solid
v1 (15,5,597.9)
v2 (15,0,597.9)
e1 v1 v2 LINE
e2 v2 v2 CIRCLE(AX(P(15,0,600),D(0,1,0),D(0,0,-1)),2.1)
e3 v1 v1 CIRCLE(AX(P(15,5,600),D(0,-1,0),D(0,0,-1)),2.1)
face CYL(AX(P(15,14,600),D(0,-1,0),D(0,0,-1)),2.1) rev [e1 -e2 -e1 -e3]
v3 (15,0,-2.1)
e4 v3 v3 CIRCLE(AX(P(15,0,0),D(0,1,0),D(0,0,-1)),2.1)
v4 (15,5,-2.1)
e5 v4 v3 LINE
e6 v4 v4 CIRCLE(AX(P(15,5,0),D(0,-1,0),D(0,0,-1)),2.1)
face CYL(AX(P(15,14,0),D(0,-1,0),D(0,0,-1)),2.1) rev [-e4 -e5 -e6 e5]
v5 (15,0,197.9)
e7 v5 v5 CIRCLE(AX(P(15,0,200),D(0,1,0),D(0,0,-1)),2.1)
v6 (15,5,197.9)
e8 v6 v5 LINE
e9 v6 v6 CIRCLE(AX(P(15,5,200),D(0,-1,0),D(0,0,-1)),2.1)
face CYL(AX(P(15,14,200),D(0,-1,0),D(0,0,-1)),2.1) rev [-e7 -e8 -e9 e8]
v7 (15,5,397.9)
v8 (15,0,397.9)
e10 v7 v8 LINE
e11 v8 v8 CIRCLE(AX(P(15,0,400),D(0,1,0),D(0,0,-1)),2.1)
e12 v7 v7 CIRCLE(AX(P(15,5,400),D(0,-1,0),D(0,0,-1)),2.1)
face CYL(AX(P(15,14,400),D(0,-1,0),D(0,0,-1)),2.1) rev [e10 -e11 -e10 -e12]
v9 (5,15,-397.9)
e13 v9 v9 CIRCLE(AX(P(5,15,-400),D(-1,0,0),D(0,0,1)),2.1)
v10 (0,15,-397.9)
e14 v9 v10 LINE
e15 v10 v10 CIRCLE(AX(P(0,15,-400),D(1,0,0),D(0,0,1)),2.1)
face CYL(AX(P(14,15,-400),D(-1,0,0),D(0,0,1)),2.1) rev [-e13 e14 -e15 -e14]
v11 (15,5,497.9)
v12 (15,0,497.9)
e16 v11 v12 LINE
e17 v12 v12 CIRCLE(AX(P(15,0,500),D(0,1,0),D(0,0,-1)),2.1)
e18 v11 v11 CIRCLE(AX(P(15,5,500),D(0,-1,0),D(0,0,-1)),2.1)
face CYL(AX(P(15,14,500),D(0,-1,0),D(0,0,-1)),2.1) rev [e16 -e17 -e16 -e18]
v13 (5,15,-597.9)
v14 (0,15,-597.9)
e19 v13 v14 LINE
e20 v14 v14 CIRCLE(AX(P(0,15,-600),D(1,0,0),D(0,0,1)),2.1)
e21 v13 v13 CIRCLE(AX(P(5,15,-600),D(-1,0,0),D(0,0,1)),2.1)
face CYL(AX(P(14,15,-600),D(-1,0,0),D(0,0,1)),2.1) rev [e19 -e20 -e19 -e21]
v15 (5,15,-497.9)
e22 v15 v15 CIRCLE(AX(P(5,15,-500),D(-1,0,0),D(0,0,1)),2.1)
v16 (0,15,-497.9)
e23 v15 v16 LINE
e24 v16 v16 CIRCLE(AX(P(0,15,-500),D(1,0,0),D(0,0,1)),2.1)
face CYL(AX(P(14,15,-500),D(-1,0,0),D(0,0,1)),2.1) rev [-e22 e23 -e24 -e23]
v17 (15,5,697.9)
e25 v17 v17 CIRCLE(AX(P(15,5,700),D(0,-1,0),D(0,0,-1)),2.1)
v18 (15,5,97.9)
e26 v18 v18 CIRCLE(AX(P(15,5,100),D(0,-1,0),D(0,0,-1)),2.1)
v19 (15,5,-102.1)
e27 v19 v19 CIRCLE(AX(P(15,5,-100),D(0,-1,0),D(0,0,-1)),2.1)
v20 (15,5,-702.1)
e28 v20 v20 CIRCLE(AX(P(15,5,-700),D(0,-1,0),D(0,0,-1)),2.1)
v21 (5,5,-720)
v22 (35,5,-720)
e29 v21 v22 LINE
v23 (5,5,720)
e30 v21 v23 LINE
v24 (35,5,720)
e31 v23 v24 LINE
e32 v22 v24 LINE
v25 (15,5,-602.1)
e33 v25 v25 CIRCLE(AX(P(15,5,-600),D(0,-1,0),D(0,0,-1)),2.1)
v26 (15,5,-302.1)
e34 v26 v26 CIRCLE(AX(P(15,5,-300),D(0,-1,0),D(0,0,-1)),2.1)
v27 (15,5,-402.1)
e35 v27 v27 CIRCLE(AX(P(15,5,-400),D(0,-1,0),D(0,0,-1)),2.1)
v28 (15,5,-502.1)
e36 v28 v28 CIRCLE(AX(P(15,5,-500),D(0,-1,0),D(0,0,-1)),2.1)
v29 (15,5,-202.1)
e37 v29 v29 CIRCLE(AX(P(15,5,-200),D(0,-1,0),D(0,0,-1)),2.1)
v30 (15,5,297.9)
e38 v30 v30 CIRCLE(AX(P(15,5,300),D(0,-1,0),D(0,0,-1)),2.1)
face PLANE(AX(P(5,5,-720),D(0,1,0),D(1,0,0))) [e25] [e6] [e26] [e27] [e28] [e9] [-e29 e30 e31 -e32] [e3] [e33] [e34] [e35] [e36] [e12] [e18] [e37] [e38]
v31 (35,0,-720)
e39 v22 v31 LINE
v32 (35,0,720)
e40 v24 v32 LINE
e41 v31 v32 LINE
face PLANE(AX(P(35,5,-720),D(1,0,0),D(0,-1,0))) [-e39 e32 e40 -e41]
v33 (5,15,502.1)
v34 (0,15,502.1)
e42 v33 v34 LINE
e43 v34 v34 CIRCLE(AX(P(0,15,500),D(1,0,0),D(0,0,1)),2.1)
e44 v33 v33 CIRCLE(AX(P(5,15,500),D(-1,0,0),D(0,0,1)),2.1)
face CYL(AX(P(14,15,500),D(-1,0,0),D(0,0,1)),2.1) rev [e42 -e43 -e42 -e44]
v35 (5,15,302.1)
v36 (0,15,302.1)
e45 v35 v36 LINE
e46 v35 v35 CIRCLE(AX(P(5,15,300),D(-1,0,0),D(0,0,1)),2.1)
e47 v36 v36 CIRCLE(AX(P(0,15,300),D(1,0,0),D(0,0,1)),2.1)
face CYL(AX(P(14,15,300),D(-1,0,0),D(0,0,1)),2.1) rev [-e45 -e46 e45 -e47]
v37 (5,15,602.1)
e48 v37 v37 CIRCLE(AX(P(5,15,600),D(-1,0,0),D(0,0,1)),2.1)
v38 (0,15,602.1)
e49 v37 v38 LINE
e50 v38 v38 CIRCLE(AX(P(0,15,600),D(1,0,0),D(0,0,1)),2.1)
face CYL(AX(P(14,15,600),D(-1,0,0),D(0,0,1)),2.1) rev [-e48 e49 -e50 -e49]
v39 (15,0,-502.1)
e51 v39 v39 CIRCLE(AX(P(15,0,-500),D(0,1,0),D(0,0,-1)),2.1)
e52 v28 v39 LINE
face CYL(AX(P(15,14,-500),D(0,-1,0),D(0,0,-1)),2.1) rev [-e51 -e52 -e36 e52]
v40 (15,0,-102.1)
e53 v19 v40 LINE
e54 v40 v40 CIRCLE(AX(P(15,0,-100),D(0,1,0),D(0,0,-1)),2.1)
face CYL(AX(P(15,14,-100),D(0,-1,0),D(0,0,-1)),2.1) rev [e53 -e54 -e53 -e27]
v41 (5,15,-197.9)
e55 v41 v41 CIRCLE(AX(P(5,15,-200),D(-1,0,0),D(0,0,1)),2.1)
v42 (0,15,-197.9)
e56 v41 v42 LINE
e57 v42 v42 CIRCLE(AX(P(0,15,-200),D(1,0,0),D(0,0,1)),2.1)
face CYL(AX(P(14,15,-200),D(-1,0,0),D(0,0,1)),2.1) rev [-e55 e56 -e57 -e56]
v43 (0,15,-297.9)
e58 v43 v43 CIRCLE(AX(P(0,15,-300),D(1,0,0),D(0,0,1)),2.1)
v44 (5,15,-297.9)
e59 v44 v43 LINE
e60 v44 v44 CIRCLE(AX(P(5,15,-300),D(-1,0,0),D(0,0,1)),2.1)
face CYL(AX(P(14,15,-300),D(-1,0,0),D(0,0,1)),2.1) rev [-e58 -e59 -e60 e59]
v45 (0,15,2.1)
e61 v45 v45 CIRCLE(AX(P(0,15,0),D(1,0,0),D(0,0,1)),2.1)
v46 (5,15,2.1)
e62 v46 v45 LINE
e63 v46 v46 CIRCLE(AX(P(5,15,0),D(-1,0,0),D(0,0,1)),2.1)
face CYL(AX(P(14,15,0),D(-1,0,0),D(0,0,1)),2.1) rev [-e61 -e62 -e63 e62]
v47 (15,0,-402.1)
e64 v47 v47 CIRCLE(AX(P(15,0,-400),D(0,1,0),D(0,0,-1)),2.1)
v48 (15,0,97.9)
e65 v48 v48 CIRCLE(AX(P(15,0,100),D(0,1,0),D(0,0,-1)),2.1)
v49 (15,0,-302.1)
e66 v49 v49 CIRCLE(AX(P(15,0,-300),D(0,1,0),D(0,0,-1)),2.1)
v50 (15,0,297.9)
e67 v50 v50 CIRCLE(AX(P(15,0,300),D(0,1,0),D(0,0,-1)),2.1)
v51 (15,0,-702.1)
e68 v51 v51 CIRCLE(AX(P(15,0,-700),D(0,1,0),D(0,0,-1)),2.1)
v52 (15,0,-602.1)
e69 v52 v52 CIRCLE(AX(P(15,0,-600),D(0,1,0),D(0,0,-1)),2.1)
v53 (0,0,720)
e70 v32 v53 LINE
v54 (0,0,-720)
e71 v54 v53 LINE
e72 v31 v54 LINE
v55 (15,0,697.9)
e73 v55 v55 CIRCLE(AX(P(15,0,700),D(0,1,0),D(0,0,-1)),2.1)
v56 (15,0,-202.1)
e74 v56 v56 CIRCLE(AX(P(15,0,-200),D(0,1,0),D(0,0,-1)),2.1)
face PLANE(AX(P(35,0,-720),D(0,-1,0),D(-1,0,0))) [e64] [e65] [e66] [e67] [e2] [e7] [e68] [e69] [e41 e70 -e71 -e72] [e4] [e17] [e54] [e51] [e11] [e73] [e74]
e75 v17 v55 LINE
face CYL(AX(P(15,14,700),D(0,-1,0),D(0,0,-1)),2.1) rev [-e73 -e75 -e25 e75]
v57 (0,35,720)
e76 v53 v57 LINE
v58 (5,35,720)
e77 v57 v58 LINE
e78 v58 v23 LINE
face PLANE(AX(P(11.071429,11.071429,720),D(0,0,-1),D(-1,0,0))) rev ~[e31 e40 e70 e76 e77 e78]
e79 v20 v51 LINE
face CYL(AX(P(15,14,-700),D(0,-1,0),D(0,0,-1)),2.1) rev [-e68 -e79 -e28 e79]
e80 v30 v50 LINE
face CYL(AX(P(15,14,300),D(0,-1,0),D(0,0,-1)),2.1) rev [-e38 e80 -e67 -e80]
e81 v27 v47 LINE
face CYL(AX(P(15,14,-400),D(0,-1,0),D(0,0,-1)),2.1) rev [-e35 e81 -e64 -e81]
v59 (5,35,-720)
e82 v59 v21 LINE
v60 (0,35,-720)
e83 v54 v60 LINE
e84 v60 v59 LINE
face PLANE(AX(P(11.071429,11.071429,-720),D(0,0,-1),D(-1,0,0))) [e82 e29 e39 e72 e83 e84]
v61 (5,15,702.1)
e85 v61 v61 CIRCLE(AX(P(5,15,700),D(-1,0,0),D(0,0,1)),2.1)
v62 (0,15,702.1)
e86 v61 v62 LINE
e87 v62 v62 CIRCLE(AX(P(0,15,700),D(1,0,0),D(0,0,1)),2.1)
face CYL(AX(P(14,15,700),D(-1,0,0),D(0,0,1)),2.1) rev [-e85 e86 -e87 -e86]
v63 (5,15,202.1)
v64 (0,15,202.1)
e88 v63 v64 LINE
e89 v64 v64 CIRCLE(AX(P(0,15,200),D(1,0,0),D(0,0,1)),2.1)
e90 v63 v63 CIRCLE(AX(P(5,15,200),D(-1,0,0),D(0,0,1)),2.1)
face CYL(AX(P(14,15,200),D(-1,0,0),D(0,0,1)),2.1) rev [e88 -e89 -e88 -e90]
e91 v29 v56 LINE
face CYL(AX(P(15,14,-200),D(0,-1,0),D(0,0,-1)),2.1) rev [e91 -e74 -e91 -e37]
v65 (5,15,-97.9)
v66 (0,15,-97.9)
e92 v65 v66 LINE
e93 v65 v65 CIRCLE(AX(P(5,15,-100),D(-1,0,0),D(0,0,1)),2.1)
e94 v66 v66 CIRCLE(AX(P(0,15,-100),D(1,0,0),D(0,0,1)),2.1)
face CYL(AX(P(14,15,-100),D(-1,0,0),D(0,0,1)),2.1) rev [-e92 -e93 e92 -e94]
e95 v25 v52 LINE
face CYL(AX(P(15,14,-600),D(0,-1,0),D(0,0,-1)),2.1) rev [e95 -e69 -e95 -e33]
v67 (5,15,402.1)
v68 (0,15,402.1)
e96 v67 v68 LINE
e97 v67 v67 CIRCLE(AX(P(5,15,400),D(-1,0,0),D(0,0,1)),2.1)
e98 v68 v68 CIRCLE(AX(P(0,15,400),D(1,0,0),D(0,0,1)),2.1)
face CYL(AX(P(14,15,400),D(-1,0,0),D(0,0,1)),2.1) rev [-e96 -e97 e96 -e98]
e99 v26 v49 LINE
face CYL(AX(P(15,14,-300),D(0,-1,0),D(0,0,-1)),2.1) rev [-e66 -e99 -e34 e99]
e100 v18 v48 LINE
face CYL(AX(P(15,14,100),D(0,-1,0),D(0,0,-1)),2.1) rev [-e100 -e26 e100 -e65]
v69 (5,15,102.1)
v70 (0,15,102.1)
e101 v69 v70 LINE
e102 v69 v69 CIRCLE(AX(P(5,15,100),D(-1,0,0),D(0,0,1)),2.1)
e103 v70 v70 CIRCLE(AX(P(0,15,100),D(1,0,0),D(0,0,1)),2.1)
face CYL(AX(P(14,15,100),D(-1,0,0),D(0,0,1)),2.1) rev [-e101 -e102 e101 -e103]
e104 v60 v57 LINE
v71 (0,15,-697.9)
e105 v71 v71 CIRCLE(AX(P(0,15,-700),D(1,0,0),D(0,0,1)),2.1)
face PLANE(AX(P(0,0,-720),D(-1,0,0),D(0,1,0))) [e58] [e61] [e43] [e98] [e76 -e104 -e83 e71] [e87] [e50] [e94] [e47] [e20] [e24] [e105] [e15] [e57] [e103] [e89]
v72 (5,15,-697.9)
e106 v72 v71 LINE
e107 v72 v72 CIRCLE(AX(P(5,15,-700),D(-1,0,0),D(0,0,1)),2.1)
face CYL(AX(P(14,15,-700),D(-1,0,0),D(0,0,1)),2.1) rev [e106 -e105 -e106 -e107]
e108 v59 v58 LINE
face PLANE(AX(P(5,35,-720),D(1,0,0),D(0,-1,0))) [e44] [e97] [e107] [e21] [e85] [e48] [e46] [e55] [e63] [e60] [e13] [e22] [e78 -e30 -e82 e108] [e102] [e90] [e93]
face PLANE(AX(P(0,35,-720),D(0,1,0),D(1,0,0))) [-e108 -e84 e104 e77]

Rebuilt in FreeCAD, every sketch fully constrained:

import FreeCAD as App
import Part
import Sketcher

V = App.Vector
Q = App.Units.Quantity

doc = App.newDocument("Part")
body = doc.addObject("PartDesign::Body", "Body")

# Sketch on XY plane
sketch1 = body.newObject("Sketcher::SketchObject", "Sketch")
sketch1.AttachmentSupport = (doc.getObject("XY_Plane"), [""])
sketch1.MapMode = "FlatFace"
sketch1.addGeometry([
    Part.LineSegment(V(0, 35, 0), V(0, 0, 0)),  # 0
    Part.LineSegment(V(0, 0, 0), V(35, 0, 0)),  # 1
    Part.LineSegment(V(35, 0, 0), V(35, 5, 0)),  # 2
    Part.LineSegment(V(35, 5, 0), V(5, 5, 0)),  # 3
    Part.LineSegment(V(5, 5, 0), V(5, 35, 0)),  # 4
    Part.LineSegment(V(5, 35, 0), V(0, 35, 0)),  # 5
], False)
sketch1.addConstraint([
    Sketcher.Constraint("Coincident", 0, 2, 1, 1),
    Sketcher.Constraint("Coincident", 1, 2, 2, 1),
    Sketcher.Constraint("Coincident", 2, 2, 3, 1),
    Sketcher.Constraint("Coincident", 3, 2, 4, 1),
    Sketcher.Constraint("Coincident", 4, 2, 5, 1),
    Sketcher.Constraint("Coincident", 5, 2, 0, 1),
    Sketcher.Constraint("Vertical", 0),
    Sketcher.Constraint("Horizontal", 1),
    Sketcher.Constraint("Vertical", 2),
    Sketcher.Constraint("Horizontal", 3),
    Sketcher.Constraint("Vertical", 4),
    Sketcher.Constraint("Horizontal", 5),
    Sketcher.Constraint("Coincident", 0, 2, -1, 1),
    Sketcher.Constraint("Equal", 1, 0),
    Sketcher.Constraint("Equal", 5, 2),
    Sketcher.Constraint("DistanceX", 1, 1, 1, 2, Q("35 mm")),
    Sketcher.Constraint("DistanceX", 3, 2, 3, 1, Q("30 mm")),
])
pad1 = body.newObject("PartDesign::Pad", "Pad")
pad1.Profile = sketch1
pad1.Type = "TwoLengths"
pad1.Length = 720
pad1.Length2 = 720

# Sketch on YZ plane
sketch2 = body.newObject("Sketcher::SketchObject", "Sketch001")
sketch2.AttachmentSupport = (doc.getObject("YZ_Plane"), [""])
sketch2.MapMode = "FlatFace"
sketch2.AttachmentOffset = App.Placement(V(0, 0, 15), App.Rotation())
sketch2.addGeometry([
    Part.LineSegment(V(15.261807, 700, 0), V(0, 700, 0)),
    Part.LineSegment(V(0, 700, 0), V(0, 697.9, 0)),
    Part.LineSegment(V(0, 697.9, 0), V(14, 697.9, 0)),
    Part.LineSegment(V(14, 697.9, 0), V(15.261807, 700, 0)),
], False)
sketch2.addGeometry(Part.LineSegment(V(0, 700, 0), V(15.261807, 700, 0)), True)  # axis
sketch2.addConstraint([
    Sketcher.Constraint("Coincident", 0, 2, 1, 1),
    Sketcher.Constraint("Coincident", 1, 2, 2, 1),
    Sketcher.Constraint("Coincident", 2, 2, 3, 1),
    Sketcher.Constraint("Coincident", 3, 2, 0, 1),
    Sketcher.Constraint("Horizontal", 0),
    Sketcher.Constraint("Vertical", 1),
    Sketcher.Constraint("Horizontal", 2),
    Sketcher.Constraint("Horizontal", 4),
    Sketcher.Constraint("Coincident", 4, 1, 0, 2),
    Sketcher.Constraint("PointOnObject", 0, 2, -2),
    Sketcher.Constraint("Equal", 0, 4),
    Sketcher.Constraint("DistanceX", 2, 1, 2, 2, Q("14 mm")),
    Sketcher.Constraint("Angle", 3, Q("59 deg")),
    Sketcher.Constraint("DistanceY", 1, 2, 1, 1, Q("2.1 mm")),
    Sketcher.Constraint("DistanceY", -1, 1, 0, 2, Q("700 mm")),
])
groove = body.newObject("PartDesign::Groove", "Groove")
groove.Profile = sketch2
groove.ReferenceAxis = (sketch2, ["Axis0"])
groove.Angle = 360
doc.recompute()

linearpattern = body.newObject("PartDesign::LinearPattern", "LinearPattern")
linearpattern.Originals = [groove]
linearpattern.Direction = (doc.getObject("Z_Axis"), [""])
linearpattern.Mode = "offset"
linearpattern.Offset = 100
linearpattern.Occurrences = 15
linearpattern.Reversed = True
body.Tip = linearpattern

# Sketch on XZ plane
sketch3 = body.newObject("Sketcher::SketchObject", "Sketch002")
sketch3.AttachmentSupport = (doc.getObject("XZ_Plane"), [""])
sketch3.MapMode = "FlatFace"
sketch3.AttachmentOffset = App.Placement(V(0, 0, -15), App.Rotation())
sketch3.addGeometry([
    Part.LineSegment(V(15.261807, 700, 0), V(0, 700, 0)),
    Part.LineSegment(V(0, 700, 0), V(0, 702.1, 0)),
    Part.LineSegment(V(0, 702.1, 0), V(14, 702.1, 0)),
    Part.LineSegment(V(14, 702.1, 0), V(15.261807, 700, 0)),
], False)
sketch3.addGeometry(Part.LineSegment(V(0, 700, 0), V(15.261807, 700, 0)), True)  # axis
sketch3.addConstraint([
    Sketcher.Constraint("Coincident", 0, 2, 1, 1),
    Sketcher.Constraint("Coincident", 1, 2, 2, 1),
    Sketcher.Constraint("Coincident", 2, 2, 3, 1),
    Sketcher.Constraint("Coincident", 3, 2, 0, 1),
    Sketcher.Constraint("Horizontal", 0),
    Sketcher.Constraint("Vertical", 1),
    Sketcher.Constraint("Horizontal", 2),
    Sketcher.Constraint("Horizontal", 4),
    Sketcher.Constraint("Coincident", 4, 1, 0, 2),
    Sketcher.Constraint("PointOnObject", 0, 2, -2),
    Sketcher.Constraint("Equal", 0, 4),
    Sketcher.Constraint("DistanceX", 2, 1, 2, 2, Q("14 mm")),
    Sketcher.Constraint("Angle", 3, Q("-59 deg")),
    Sketcher.Constraint("DistanceY", 1, 1, 1, 2, Q("2.1 mm")),
    Sketcher.Constraint("DistanceY", -1, 1, 0, 2, Q("700 mm")),
])
groove2 = body.newObject("PartDesign::Groove", "Groove001")
groove2.Profile = sketch3
groove2.ReferenceAxis = (sketch3, ["Axis0"])
groove2.Angle = 360
doc.recompute()

linearpattern2 = body.newObject("PartDesign::LinearPattern", "LinearPattern001")
linearpattern2.Originals = [groove2]
linearpattern2.Direction = (doc.getObject("Z_Axis"), [""])
linearpattern2.Mode = "offset"
linearpattern2.Offset = 100
linearpattern2.Occurrences = 15
linearpattern2.Reversed = True
body.Tip = linearpattern2

doc.recompute()
